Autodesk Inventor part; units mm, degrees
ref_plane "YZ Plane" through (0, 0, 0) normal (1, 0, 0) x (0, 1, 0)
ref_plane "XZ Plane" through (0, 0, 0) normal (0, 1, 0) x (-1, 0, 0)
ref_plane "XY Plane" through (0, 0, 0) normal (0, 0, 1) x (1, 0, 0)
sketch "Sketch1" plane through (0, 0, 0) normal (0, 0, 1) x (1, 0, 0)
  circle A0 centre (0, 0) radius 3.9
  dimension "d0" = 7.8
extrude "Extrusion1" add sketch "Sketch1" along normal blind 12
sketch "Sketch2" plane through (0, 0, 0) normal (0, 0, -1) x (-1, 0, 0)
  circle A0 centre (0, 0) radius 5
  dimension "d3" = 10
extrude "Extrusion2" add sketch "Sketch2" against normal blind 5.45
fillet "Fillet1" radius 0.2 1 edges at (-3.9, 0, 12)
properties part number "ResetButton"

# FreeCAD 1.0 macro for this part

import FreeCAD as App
import Part
import Sketcher

V = App.Vector


def edges_at(feature, points):
    """Names of the edges that pass closest to the given points."""
    edges = feature.Shape.Edges
    near = lambda p: min(range(len(edges)), key=lambda i: edges[i].distToShape(Part.Vertex(*p))[0])
    return sorted({f"Edge{near(p) + 1}" for p in points})

doc = App.newDocument("Part")
body = doc.addObject("PartDesign::Body", "Body")

# Sketch on XY plane
sketch1 = doc.addObject("Sketcher::SketchObject", "Sketch")
body.addObject(sketch1)
sketch1.AttachmentSupport = (doc.XY_Plane, [""])
sketch1.MapMode = "FlatFace"
sketch1.addGeometry(Part.Circle(V(0, 0, 0), V(0, 0, 1), 3.9), False)
sketch1.addConstraint([
    Sketcher.Constraint("Coincident", 0, 3, -1, 1),
    Sketcher.Constraint("Diameter", 0, 7.8),
])
pad1 = doc.addObject("PartDesign::Pad", "Pad")
body.addObject(pad1)
pad1.Profile = sketch1
pad1.Length = 12

# Sketch on XY plane
sketch2 = doc.addObject("Sketcher::SketchObject", "Sketch001")
body.addObject(sketch2)
sketch2.AttachmentSupport = (doc.XY_Plane, [""])
sketch2.MapMode = "FlatFace"
sketch2.addGeometry(Part.Circle(V(0, 0, 0), V(0, 0, 1), 5), False)
sketch2.addConstraint([
    Sketcher.Constraint("Coincident", 0, 3, -1, 1),
    Sketcher.Constraint("Diameter", 0, 10.0),
])
pad2 = doc.addObject("PartDesign::Pad", "Pad001")
body.addObject(pad2)
pad2.Profile = sketch2
pad2.Length = 5.45
doc.recompute()

fillet = doc.addObject("PartDesign::Fillet", "Fillet")
body.addObject(fillet)
fillet.Base = (pad2, edges_at(pad2, [(-3.9, 0, 12)]))
fillet.Radius = 0.2

doc.recompute()
